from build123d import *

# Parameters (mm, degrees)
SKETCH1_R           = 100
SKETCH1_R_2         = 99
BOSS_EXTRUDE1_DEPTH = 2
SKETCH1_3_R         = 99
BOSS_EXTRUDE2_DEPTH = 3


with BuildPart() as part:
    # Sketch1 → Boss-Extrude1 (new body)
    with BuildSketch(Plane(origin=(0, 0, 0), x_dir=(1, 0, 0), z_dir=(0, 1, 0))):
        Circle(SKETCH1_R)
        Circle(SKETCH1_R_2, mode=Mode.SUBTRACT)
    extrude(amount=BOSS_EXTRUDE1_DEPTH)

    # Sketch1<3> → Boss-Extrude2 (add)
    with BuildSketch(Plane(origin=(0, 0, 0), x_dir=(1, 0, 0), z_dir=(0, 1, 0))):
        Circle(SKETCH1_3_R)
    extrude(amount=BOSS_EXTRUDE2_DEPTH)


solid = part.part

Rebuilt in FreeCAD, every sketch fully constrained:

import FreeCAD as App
import Part
import Sketcher

V = App.Vector

doc = App.newDocument("Part")
params = doc.addObject("Spreadsheet::Sheet", "Params")
for row, (alias, value) in enumerate([
    ("sketch1_diameter", "200 mm"),
    ("sketch1_diameter2", "198 mm"),
    ("pad1_length", "2 mm"),
    ("sketch2_diameter", "198 mm"),
    ("pad2_length", "3 mm"),
], start=1):
    params.set(f"A{row}", alias)
    params.set(f"B{row}", "=" + value)
    params.setAlias(f"B{row}", alias)

body = doc.addObject("PartDesign::Body", "Body")

# Sketch on XZ plane
sketch1 = body.newObject("Sketcher::SketchObject", "Sketch")
sketch1.AttachmentSupport = (doc.getObject("XZ_Plane"), [""])
sketch1.MapMode = "FlatFace"
sketch1.addGeometry([
    Part.Circle(V(0, 0, 0), V(0, 0, 1), 100),
    Part.Circle(V(0, 0, 0), V(0, 0, 1), 99),
], False)
sketch1.addConstraint([
    Sketcher.Constraint("Coincident", 0, 3, -1, 1),
    Sketcher.Constraint("Coincident", 1, 3, -1, 1),
    Sketcher.Constraint("Diameter", 0, 200.0),
    Sketcher.Constraint("Diameter", 1, 198.0),
])
sketch1.setExpression("Constraints[2]", "Params.sketch1_diameter")
sketch1.setExpression("Constraints[3]", "Params.sketch1_diameter2")
pad1 = body.newObject("PartDesign::Pad", "Pad")
pad1.Profile = sketch1
pad1.setExpression("Length", "Params.pad1_length")
pad1.Reversed = True

# Sketch on XZ plane
sketch2 = body.newObject("Sketcher::SketchObject", "Sketch001")
sketch2.AttachmentSupport = (doc.getObject("XZ_Plane"), [""])
sketch2.MapMode = "FlatFace"
sketch2.addGeometry(Part.Circle(V(0, 0, 0), V(0, 0, 1), 99), False)
sketch2.addConstraint([
    Sketcher.Constraint("Coincident", 0, 3, -1, 1),
    Sketcher.Constraint("Diameter", 0, 198.0),
])
sketch2.setExpression("Constraints[1]", "Params.sketch2_diameter")
pad2 = body.newObject("PartDesign::Pad", "Pad001")
pad2.Profile = sketch2
pad2.setExpression("Length", "Params.pad2_length")
pad2.Reversed = True

doc.recompute()
